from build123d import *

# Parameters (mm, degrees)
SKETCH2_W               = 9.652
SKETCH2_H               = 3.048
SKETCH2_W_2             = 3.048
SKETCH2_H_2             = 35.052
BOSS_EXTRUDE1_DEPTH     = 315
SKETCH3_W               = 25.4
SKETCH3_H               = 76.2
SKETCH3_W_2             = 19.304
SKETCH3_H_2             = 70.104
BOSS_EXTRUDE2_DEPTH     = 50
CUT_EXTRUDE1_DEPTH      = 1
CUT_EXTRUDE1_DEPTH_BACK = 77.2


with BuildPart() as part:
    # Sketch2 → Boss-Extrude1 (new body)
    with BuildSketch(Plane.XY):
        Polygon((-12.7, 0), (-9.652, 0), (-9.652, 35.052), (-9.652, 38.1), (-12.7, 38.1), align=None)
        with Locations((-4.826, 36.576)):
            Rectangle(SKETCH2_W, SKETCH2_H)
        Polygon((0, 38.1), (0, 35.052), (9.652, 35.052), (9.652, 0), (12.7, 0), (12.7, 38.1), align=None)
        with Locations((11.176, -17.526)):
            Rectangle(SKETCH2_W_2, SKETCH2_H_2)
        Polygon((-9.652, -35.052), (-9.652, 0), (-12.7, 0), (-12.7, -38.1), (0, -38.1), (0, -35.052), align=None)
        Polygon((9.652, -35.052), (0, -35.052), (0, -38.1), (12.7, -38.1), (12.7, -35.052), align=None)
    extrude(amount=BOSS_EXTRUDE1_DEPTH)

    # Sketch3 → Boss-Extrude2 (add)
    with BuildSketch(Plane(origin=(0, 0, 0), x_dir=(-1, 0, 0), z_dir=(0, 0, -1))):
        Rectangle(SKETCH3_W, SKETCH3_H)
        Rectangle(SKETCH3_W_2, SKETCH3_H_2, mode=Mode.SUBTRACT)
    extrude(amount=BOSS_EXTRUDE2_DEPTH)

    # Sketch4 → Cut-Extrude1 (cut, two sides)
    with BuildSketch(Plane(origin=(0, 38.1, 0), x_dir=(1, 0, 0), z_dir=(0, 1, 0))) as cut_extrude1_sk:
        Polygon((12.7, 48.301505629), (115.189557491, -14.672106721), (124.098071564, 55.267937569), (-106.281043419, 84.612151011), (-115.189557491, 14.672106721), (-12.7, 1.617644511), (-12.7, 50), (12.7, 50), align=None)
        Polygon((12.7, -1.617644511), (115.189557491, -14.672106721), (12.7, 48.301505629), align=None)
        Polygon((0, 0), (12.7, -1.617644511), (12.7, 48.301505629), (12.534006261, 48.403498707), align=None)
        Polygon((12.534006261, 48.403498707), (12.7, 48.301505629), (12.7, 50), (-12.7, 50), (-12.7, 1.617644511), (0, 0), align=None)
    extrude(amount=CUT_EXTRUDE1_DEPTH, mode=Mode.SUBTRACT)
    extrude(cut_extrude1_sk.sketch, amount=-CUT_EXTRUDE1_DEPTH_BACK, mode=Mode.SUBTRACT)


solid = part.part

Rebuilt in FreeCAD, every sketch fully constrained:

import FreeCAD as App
import Part
import Sketcher

V = App.Vector
Q = App.Units.Quantity


def add_polygon(sketch, points):
    """Adds a closed chain of lines whose ends are joined by coincident constraints."""
    first, n = sketch.GeometryCount, len(points)
    for a, b in zip(points, points[1:] + points[:1]):
        sketch.addGeometry(Part.LineSegment(App.Vector(*a, 0), App.Vector(*b, 0)), False)
    for i in range(n):
        sketch.addConstraint(Sketcher.Constraint("Coincident", first + i, 2, first + (i + 1) % n, 1))

doc = App.newDocument("Part")
params = doc.addObject("Spreadsheet::Sheet", "Params")
for row, (alias, value) in enumerate([
    ("sketch1_width", "1 in"),
    ("sketch1_height", "3 in"),
    ("sketch1_width2", "0.76 in"),
    ("sketch1_height2", "2.76 in"),
    ("pad1_length", "315 mm"),
    ("sketch2_width", "1 in"),
    ("sketch2_height", "3 in"),
    ("sketch2_width2", "0.76 in"),
    ("sketch2_height2", "2.76 in"),
    ("pad2_length", "50 mm"),
], start=1):
    params.set(f"A{row}", alias)
    params.set(f"B{row}", "=" + value)
    params.setAlias(f"B{row}", alias)

body = doc.addObject("PartDesign::Body", "Body")

sketch1 = doc.addObject("Sketcher::SketchObject", "Sketch")
body.addObject(sketch1)
sketch1.AttachmentSupport = (doc.XY_Plane, [""])
sketch1.MapMode = "FlatFace"
add_polygon(sketch1, [(12.7, 38.1), (-12.7, 38.1), (-12.7, -38.1), (12.7, -38.1)])
add_polygon(sketch1, [(-9.652, 35.052), (9.652, 35.052), (9.652, -35.052), (-9.652, -35.052)])
sketch1.addConstraint([
    Sketcher.Constraint("Horizontal", 0),
    Sketcher.Constraint("Vertical", 1),
    Sketcher.Constraint("Horizontal", 2),
    Sketcher.Constraint("Vertical", 3),
    Sketcher.Constraint("Horizontal", 4),
    Sketcher.Constraint("Vertical", 5),
    Sketcher.Constraint("Horizontal", 6),
    Sketcher.Constraint("Vertical", 7),
    Sketcher.Constraint("Symmetric", 0, 2, 2, 2, -1, 1),
    Sketcher.Constraint("Symmetric", 4, 2, 6, 2, -1, 1),
    Sketcher.Constraint("DistanceX", 0, 2, 0, 1, Q("1 in")),
    Sketcher.Constraint("DistanceY", 1, 2, 1, 1, Q("3 in")),
    Sketcher.Constraint("DistanceX", 4, 1, 4, 2, Q("0.76 in")),
    Sketcher.Constraint("DistanceY", 5, 2, 5, 1, Q("2.76 in")),
])
sketch1.setExpression("Constraints[18]", "Params.sketch1_width")
sketch1.setExpression("Constraints[19]", "Params.sketch1_height")
sketch1.setExpression("Constraints[20]", "Params.sketch1_width2")
sketch1.setExpression("Constraints[21]", "Params.sketch1_height2")
pad1 = doc.addObject("PartDesign::Pad", "Pad")
body.addObject(pad1)
pad1.Profile = sketch1
pad1.setExpression("Length", "Params.pad1_length")

sketch2 = doc.addObject("Sketcher::SketchObject", "Sketch001")
body.addObject(sketch2)
sketch2.AttachmentSupport = (doc.XY_Plane, [""])
sketch2.MapMode = "FlatFace"
add_polygon(sketch2, [(12.7, 38.1), (12.7, -38.1), (-12.7, -38.1), (-12.7, 38.1)])
add_polygon(sketch2, [(-9.652, -35.052), (9.652, -35.052), (9.652, 35.052), (-9.652, 35.052)])
sketch2.addConstraint([
    Sketcher.Constraint("Vertical", 0),
    Sketcher.Constraint("Horizontal", 1),
    Sketcher.Constraint("Vertical", 2),
    Sketcher.Constraint("Horizontal", 3),
    Sketcher.Constraint("Horizontal", 4),
    Sketcher.Constraint("Vertical", 5),
    Sketcher.Constraint("Horizontal", 6),
    Sketcher.Constraint("Vertical", 7),
    Sketcher.Constraint("Symmetric", 0, 2, 2, 2, -1, 1),
    Sketcher.Constraint("Symmetric", 4, 2, 6, 2, -1, 1),
    Sketcher.Constraint("DistanceX", 1, 2, 1, 1, Q("1 in")),
    Sketcher.Constraint("DistanceY", 0, 2, 0, 1, Q("3 in")),
    Sketcher.Constraint("DistanceX", 4, 1, 4, 2, Q("0.76 in")),
    Sketcher.Constraint("DistanceY", 5, 1, 5, 2, Q("2.76 in")),
])
sketch2.setExpression("Constraints[18]", "Params.sketch2_width")
sketch2.setExpression("Constraints[19]", "Params.sketch2_height")
sketch2.setExpression("Constraints[20]", "Params.sketch2_width2")
sketch2.setExpression("Constraints[21]", "Params.sketch2_height2")
pad2 = doc.addObject("PartDesign::Pad", "Pad001")
body.addObject(pad2)
pad2.Profile = sketch2
pad2.setExpression("Length", "Params.pad2_length")
pad2.Reversed = True

sketch3 = doc.addObject("Sketcher::SketchObject", "Sketch002")
body.addObject(sketch3)
sketch3.AttachmentSupport = (doc.XZ_Plane, [""])
sketch3.MapMode = "FlatFace"
sketch3.AttachmentOffset = App.Placement(V(0, 0, -1.5 * 25.4), App.Rotation())
add_polygon(sketch3, [(115.189557, 14.672107), (124.098072, -55.267938), (-106.281043, -84.612151), (-115.189557, -14.672107), (-12.7, -1.617645), (12.7, 1.617645)])
sketch3.addConstraint([
    Sketcher.Constraint("DistanceX", 3, 2, 4, 2, Q("1 in")),
    Sketcher.Constraint("DistanceX", 3, 2, -1, 1, Q("0.5 in")),
    Sketcher.Constraint("DistanceX", 1, 2, 5, 2, 221.470601),
    Sketcher.Constraint("Distance", 3, 103.317609),
    Sketcher.Constraint("Distance", 5, 103.317609),
    Sketcher.Constraint("DistanceX", -1, 1, 0, 2, 124.098072),
    Sketcher.Constraint("DistanceY", 1, 2, -1, 1, 84.612151),
    Sketcher.Constraint("DistanceX", 2, 2, 0, 2, 239.287629),
    Sketcher.Constraint("DistanceY", 0, 2, 2, 2, 40.595831),
    Sketcher.Constraint("DistanceY", 3, 2, 4, 2, 3.235289),
    Sketcher.Constraint("DistanceY", 3, 2, 5, 2, 16.289751),
    Sketcher.Constraint("Distance", 1, 232.240435),
])
pocket1 = doc.addObject("PartDesign::Pocket", "Pocket")
body.addObject(pocket1)
pocket1.Profile = sketch3
pocket1.Type = "ThroughAll"
pocket1.Midplane = True

doc.recompute()
